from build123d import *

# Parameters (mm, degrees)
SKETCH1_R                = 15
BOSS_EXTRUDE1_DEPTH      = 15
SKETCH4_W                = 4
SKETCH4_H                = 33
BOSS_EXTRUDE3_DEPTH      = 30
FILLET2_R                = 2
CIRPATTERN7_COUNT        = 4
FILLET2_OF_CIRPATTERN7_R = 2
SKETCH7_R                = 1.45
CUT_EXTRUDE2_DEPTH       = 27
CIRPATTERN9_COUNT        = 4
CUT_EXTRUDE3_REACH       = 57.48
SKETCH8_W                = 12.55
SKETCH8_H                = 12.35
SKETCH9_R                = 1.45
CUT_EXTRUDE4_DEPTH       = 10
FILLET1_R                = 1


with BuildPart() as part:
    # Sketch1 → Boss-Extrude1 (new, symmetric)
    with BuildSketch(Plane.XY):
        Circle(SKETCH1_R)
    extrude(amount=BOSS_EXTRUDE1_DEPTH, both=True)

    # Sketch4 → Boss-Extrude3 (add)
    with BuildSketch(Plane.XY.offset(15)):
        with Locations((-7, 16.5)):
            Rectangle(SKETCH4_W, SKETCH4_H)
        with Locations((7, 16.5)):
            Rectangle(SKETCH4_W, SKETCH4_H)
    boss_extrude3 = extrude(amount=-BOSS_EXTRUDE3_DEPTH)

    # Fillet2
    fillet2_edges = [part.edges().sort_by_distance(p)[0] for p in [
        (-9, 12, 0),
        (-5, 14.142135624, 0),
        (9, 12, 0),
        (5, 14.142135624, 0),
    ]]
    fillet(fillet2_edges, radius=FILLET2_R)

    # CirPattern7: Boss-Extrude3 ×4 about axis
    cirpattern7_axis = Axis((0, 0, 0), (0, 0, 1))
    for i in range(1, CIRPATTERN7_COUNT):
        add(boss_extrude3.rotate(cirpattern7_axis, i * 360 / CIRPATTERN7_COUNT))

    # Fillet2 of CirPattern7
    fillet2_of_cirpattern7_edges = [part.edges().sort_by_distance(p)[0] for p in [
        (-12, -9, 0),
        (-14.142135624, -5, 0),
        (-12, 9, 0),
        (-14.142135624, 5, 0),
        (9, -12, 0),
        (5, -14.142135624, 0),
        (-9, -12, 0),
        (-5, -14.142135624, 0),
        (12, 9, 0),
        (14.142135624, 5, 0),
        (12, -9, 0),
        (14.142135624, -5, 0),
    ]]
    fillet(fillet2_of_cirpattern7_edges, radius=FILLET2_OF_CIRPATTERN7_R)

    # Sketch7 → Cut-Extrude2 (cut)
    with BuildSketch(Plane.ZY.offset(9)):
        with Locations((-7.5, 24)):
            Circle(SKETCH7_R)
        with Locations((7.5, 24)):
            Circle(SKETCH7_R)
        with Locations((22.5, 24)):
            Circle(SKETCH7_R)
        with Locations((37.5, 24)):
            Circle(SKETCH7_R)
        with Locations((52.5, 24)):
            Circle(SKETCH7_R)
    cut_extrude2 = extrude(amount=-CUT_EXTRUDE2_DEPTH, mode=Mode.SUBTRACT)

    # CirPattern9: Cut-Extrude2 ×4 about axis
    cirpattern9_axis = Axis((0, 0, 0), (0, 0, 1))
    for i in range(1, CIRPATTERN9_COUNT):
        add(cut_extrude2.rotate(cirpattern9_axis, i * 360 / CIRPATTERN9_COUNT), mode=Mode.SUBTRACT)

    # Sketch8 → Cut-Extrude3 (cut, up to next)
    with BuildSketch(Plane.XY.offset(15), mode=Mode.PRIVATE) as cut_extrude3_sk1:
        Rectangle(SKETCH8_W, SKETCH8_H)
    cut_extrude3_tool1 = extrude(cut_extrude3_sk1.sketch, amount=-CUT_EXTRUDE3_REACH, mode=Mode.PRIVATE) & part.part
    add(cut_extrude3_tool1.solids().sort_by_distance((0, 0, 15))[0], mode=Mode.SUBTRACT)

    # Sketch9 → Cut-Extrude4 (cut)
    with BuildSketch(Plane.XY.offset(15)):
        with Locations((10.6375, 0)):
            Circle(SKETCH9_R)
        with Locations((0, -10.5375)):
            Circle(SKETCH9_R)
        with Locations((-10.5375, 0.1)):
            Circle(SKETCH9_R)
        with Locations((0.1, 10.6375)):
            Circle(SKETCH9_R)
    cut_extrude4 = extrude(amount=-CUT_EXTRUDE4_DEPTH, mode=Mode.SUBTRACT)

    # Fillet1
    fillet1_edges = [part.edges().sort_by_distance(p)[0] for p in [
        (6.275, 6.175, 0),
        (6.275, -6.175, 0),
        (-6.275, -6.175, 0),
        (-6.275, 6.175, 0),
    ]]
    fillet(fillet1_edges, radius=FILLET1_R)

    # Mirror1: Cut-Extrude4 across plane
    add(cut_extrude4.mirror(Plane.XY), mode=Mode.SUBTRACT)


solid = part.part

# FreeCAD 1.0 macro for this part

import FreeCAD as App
import Part
import Sketcher
Q = App.Units.Quantity


def edges_at(feature, points):
    """Names of the edges that pass closest to the given points."""
    edges = feature.Shape.Edges
    near = lambda p: min(range(len(edges)), key=lambda i: edges[i].distToShape(Part.Vertex(*p))[0])
    return sorted({f"Edge{near(p) + 1}" for p in points})

doc = App.newDocument("Part")
params = doc.addObject("Spreadsheet::Sheet", "Params")
for row, (alias, value) in enumerate([
    ("sketch1_diameter", "30 mm"),
    ("pad1_length", "30 mm"),
    ("sketch2_width", "4 mm"),
    ("sketch2_height", "33 mm"),
    ("pad2_length", "30 mm"),
    ("fillet_radius", "2 mm"),
    ("fillet2_radius", "2 mm"),
    ("sketch3_diameter", "2.9 mm"),
    ("pocket1_length", "27 mm"),
    ("sketch4_width", "12.55 mm"),
    ("sketch4_height", "12.35 mm"),
    ("sketch5_diameter", "2.9 mm"),
    ("pocket3_length", "10 mm"),
    ("fillet3_radius", "1 mm"),
], start=1):
    params.set(f"A{row}", alias)
    params.set(f"B{row}", "=" + value)
    params.setAlias(f"B{row}", alias)

body = doc.addObject("PartDesign::Body", "Body")

# Sketch on XY plane
sketch1 = doc.addObject("Sketcher::SketchObject", "Sketch")
body.addObject(sketch1)
sketch1.AttachmentSupport = (doc.XY_Plane, [""])
sketch1.MapMode = "FlatFace"
sketch1.addGeometry(Part.Circle(App.Vector(0, 0, 0), App.Vector(0, 0, 1), 15), False)
sketch1.addConstraint([
    Sketcher.Constraint("Coincident", 0, 3, -1, 1),
    Sketcher.Constraint("Diameter", 0, Q("30 mm")),
])
sketch1.setExpression("Constraints[1]", "Params.sketch1_diameter")
pad1 = doc.addObject("PartDesign::Pad", "Pad")
body.addObject(pad1)
pad1.Profile = sketch1
pad1.setExpression("Length", "Params.pad1_length")
pad1.Midplane = True

# Sketch on XY plane
sketch2 = doc.addObject("Sketcher::SketchObject", "Sketch001")
body.addObject(sketch2)
sketch2.AttachmentSupport = (doc.XY_Plane, [""])
sketch2.MapMode = "FlatFace"
sketch2.AttachmentOffset = App.Placement(App.Vector(0, 0, 15), App.Rotation())
sketch2.addGeometry([
    Part.LineSegment(App.Vector(-9, 33, 0), App.Vector(-9, 0, 0)),  # 0
    Part.LineSegment(App.Vector(-9, 0, 0), App.Vector(-5, 0, 0)),  # 1
    Part.LineSegment(App.Vector(-5, 0, 0), App.Vector(-5, 33, 0)),  # 2
    Part.LineSegment(App.Vector(-5, 33, 0), App.Vector(-9, 33, 0)),  # 3
    Part.LineSegment(App.Vector(5, 33, 0), App.Vector(5, 0, 0)),  # 4
    Part.LineSegment(App.Vector(5, 0, 0), App.Vector(9, 0, 0)),  # 5
    Part.LineSegment(App.Vector(9, 0, 0), App.Vector(9, 33, 0)),  # 6
    Part.LineSegment(App.Vector(9, 33, 0), App.Vector(5, 33, 0)),  # 7
], False)
sketch2.addConstraint([
    Sketcher.Constraint("Coincident", 0, 2, 1, 1),
    Sketcher.Constraint("Coincident", 1, 2, 2, 1),
    Sketcher.Constraint("Coincident", 2, 2, 3, 1),
    Sketcher.Constraint("Coincident", 3, 2, 0, 1),
    Sketcher.Constraint("Coincident", 4, 2, 5, 1),
    Sketcher.Constraint("Coincident", 5, 2, 6, 1),
    Sketcher.Constraint("Coincident", 6, 2, 7, 1),
    Sketcher.Constraint("Coincident", 7, 2, 4, 1),
    Sketcher.Constraint("Vertical", 0),
    Sketcher.Constraint("Horizontal", 1),
    Sketcher.Constraint("Vertical", 2),
    Sketcher.Constraint("Horizontal", 3),
    Sketcher.Constraint("Vertical", 4),
    Sketcher.Constraint("Horizontal", 5),
    Sketcher.Constraint("Vertical", 6),
    Sketcher.Constraint("Horizontal", 7),
    Sketcher.Constraint("Symmetric", 1, 2, 4, 2, -1, 1),
    Sketcher.Constraint("Symmetric", 0, 2, 5, 2, -2),
    Sketcher.Constraint("Horizontal", 3, 2, 6, 2),
    Sketcher.Constraint("DistanceX", 1, 1, 1, 2, Q("4 mm")),
    Sketcher.Constraint("DistanceY", 0, 2, 0, 1, Q("33 mm")),
    Sketcher.Constraint("DistanceX", 0, 2, -1, 1, Q("9 mm")),
])
sketch2.setExpression("Constraints[19]", "Params.sketch2_width")
sketch2.setExpression("Constraints[20]", "Params.sketch2_height")
pad2 = doc.addObject("PartDesign::Pad", "Pad001")
body.addObject(pad2)
pad2.Profile = sketch2
pad2.setExpression("Length", "Params.pad2_length")
pad2.Reversed = True
doc.recompute()

fillet = doc.addObject("PartDesign::Fillet", "Fillet")
body.addObject(fillet)
fillet.Base = (pad2, edges_at(pad2, [
    (-9, 12, 0),
    (-5, 14.142, 0),
    (9, 12, 0),
    (5, 14.142, 0),
]))
fillet.setExpression("Radius", "Params.fillet_radius")
doc.recompute()

polarpattern = doc.addObject("PartDesign::PolarPattern", "PolarPattern")
body.addObject(polarpattern)
polarpattern.Originals = [pad2]
polarpattern.Axis = (doc.Z_Axis, [""])
polarpattern.Angle = 360
polarpattern.Occurrences = 4
body.Tip = polarpattern
doc.recompute()

fillet2 = doc.addObject("PartDesign::Fillet", "Fillet001")
body.addObject(fillet2)
fillet2.Base = (polarpattern, edges_at(polarpattern, [
    (-12, -9, 0),
    (-14.142, -5, 0),
    (-12, 9, 0),
    (-14.142, 5, 0),
    (9, -12, 0),
    (5, -14.142, 0),
    (-9, -12, 0),
    (-5, -14.142, 0),
    (12, 9, 0),
    (14.142, 5, 0),
    (12, -9, 0),
    (14.142, -5, 0),
]))
fillet2.setExpression("Radius", "Params.fillet2_radius")

# Sketch on YZ plane
sketch3 = doc.addObject("Sketcher::SketchObject", "Sketch002")
body.addObject(sketch3)
sketch3.AttachmentSupport = (doc.YZ_Plane, [""])
sketch3.MapMode = "FlatFace"
sketch3.AttachmentOffset = App.Placement(App.Vector(0, 0, -9), App.Rotation())
sketch3.addGeometry([
    Part.Circle(App.Vector(24, -7.5, 0), App.Vector(0, 0, 1), 1.4),  # 0
    Part.Circle(App.Vector(24, 7.5, 0), App.Vector(0, 0, 1), 1.4),  # 1
    Part.Circle(App.Vector(24, 22.5, 0), App.Vector(0, 0, 1), 1.4),  # 2
    Part.Circle(App.Vector(24, 37.5, 0), App.Vector(0, 0, 1), 1.4),  # 3
    Part.Circle(App.Vector(24, 52.5, 0), App.Vector(0, 0, 1), 1.4),  # 4
], False)
sketch3.addConstraint([
    Sketcher.Constraint("Equal", 0, 1),
    Sketcher.Constraint("Equal", 1, 2),
    Sketcher.Constraint("Equal", 2, 3),
    Sketcher.Constraint("Equal", 3, 4),
    Sketcher.Constraint("Symmetric", 0, 3, 1, 3, -1),
    Sketcher.Constraint("Vertical", 1, 3, 2, 3),
    Sketcher.Constraint("Vertical", 2, 3, 3, 3),
    Sketcher.Constraint("Vertical", 3, 3, 4, 3),
    Sketcher.Constraint("Diameter", 0, Q("2.9 mm")),
    Sketcher.Constraint("DistanceX", -1, 1, 0, 3, Q("24 mm")),
    Sketcher.Constraint("DistanceY", 0, 3, 1, 3, Q("15 mm")),
    Sketcher.Constraint("DistanceY", 1, 3, 2, 3, Q("15 mm")),
    Sketcher.Constraint("DistanceY", 2, 3, 3, 3, Q("15 mm")),
    Sketcher.Constraint("DistanceY", 3, 3, 4, 3, Q("15 mm")),
])
sketch3.setExpression("Constraints[8]", "Params.sketch3_diameter")
pocket1 = doc.addObject("PartDesign::Pocket", "Pocket")
body.addObject(pocket1)
pocket1.Profile = sketch3
pocket1.setExpression("Length", "Params.pocket1_length")
pocket1.Reversed = True
doc.recompute()

polarpattern2 = doc.addObject("PartDesign::PolarPattern", "PolarPattern001")
body.addObject(polarpattern2)
polarpattern2.Originals = [pocket1]
polarpattern2.Axis = (doc.Z_Axis, [""])
polarpattern2.Angle = 360
polarpattern2.Occurrences = 4
body.Tip = polarpattern2

# Sketch on XY plane
sketch4 = doc.addObject("Sketcher::SketchObject", "Sketch003")
body.addObject(sketch4)
sketch4.AttachmentSupport = (doc.XY_Plane, [""])
sketch4.MapMode = "FlatFace"
sketch4.AttachmentOffset = App.Placement(App.Vector(0, 0, 15), App.Rotation())
sketch4.addGeometry([
    Part.LineSegment(App.Vector(-6, 6, 0), App.Vector(-6, -6, 0)),
    Part.LineSegment(App.Vector(-6, -6, 0), App.Vector(6, -6, 0)),
    Part.LineSegment(App.Vector(6, -6, 0), App.Vector(6, 6, 0)),
    Part.LineSegment(App.Vector(6, 6, 0), App.Vector(-6, 6, 0)),
], False)
sketch4.addConstraint([
    Sketcher.Constraint("Coincident", 0, 2, 1, 1),
    Sketcher.Constraint("Coincident", 1, 2, 2, 1),
    Sketcher.Constraint("Coincident", 2, 2, 3, 1),
    Sketcher.Constraint("Coincident", 3, 2, 0, 1),
    Sketcher.Constraint("Vertical", 0),
    Sketcher.Constraint("Horizontal", 1),
    Sketcher.Constraint("Vertical", 2),
    Sketcher.Constraint("Horizontal", 3),
    Sketcher.Constraint("Symmetric", 0, 2, 2, 2, -1, 1),
    Sketcher.Constraint("DistanceX", 1, 1, 1, 2, Q("12.55 mm")),
    Sketcher.Constraint("DistanceY", 0, 2, 0, 1, Q("12.35 mm")),
])
sketch4.setExpression("Constraints[9]", "Params.sketch4_width")
sketch4.setExpression("Constraints[10]", "Params.sketch4_height")
pocket2 = doc.addObject("PartDesign::Pocket", "Pocket001")
body.addObject(pocket2)
pocket2.Profile = sketch4
pocket2.Type = "UpToFirst"

# Sketch on XY plane
sketch5 = doc.addObject("Sketcher::SketchObject", "Sketch004")
body.addObject(sketch5)
sketch5.AttachmentSupport = (doc.XY_Plane, [""])
sketch5.MapMode = "FlatFace"
sketch5.AttachmentOffset = App.Placement(App.Vector(0, 0, 15), App.Rotation())
sketch5.addGeometry([
    Part.Circle(App.Vector(10.6, 0, 0), App.Vector(0, 0, 1), 1.4),
    Part.Circle(App.Vector(0, -10.5, 0), App.Vector(0, 0, 1), 1.4),
    Part.Circle(App.Vector(-10.5, 0.1, 0), App.Vector(0, 0, 1), 1.4),
    Part.Circle(App.Vector(0.1, 10.6, 0), App.Vector(0, 0, 1), 1.4),
], False)
sketch5.addConstraint([
    Sketcher.Constraint("Equal", 0, 1),
    Sketcher.Constraint("Equal", 1, 2),
    Sketcher.Constraint("Equal", 2, 3),
    Sketcher.Constraint("PointOnObject", 0, 3, -1),
    Sketcher.Constraint("PointOnObject", 1, 3, -2),
    Sketcher.Constraint("Diameter", 0, Q("2.9 mm")),
    Sketcher.Constraint("DistanceY", -1, 1, 2, 3, Q("0.1 mm")),
    Sketcher.Constraint("DistanceX", -1, 1, 3, 3, Q("0.1 mm")),
    Sketcher.Constraint("DistanceX", 2, 3, 0, 3, Q("21.175 mm")),
    Sketcher.Constraint("DistanceY", 1, 3, 3, 3, Q("21.175 mm")),
    Sketcher.Constraint("DistanceX", -1, 1, 0, 3, Q("10.6375 mm")),
    Sketcher.Constraint("DistanceY", 1, 3, -1, 1, Q("10.5375 mm")),
])
sketch5.setExpression("Constraints[5]", "Params.sketch5_diameter")
pocket3 = doc.addObject("PartDesign::Pocket", "Pocket002")
body.addObject(pocket3)
pocket3.Profile = sketch5
pocket3.setExpression("Length", "Params.pocket3_length")
doc.recompute()

fillet3 = doc.addObject("PartDesign::Fillet", "Fillet002")
body.addObject(fillet3)
fillet3.Base = (pocket3, edges_at(pocket3, [
    (6.275, 6.175, 0),
    (6.275, -6.175, 0),
    (-6.275, -6.175, 0),
    (-6.275, 6.175, 0),
]))
fillet3.setExpression("Radius", "Params.fillet3_radius")
doc.recompute()

mirrored = doc.addObject("PartDesign::Mirrored", "Mirrored")
body.addObject(mirrored)
mirrored.Originals = [pocket3]
mirrored.MirrorPlane = (doc.XY_Plane, [""])
body.Tip = mirrored

doc.recompute()
